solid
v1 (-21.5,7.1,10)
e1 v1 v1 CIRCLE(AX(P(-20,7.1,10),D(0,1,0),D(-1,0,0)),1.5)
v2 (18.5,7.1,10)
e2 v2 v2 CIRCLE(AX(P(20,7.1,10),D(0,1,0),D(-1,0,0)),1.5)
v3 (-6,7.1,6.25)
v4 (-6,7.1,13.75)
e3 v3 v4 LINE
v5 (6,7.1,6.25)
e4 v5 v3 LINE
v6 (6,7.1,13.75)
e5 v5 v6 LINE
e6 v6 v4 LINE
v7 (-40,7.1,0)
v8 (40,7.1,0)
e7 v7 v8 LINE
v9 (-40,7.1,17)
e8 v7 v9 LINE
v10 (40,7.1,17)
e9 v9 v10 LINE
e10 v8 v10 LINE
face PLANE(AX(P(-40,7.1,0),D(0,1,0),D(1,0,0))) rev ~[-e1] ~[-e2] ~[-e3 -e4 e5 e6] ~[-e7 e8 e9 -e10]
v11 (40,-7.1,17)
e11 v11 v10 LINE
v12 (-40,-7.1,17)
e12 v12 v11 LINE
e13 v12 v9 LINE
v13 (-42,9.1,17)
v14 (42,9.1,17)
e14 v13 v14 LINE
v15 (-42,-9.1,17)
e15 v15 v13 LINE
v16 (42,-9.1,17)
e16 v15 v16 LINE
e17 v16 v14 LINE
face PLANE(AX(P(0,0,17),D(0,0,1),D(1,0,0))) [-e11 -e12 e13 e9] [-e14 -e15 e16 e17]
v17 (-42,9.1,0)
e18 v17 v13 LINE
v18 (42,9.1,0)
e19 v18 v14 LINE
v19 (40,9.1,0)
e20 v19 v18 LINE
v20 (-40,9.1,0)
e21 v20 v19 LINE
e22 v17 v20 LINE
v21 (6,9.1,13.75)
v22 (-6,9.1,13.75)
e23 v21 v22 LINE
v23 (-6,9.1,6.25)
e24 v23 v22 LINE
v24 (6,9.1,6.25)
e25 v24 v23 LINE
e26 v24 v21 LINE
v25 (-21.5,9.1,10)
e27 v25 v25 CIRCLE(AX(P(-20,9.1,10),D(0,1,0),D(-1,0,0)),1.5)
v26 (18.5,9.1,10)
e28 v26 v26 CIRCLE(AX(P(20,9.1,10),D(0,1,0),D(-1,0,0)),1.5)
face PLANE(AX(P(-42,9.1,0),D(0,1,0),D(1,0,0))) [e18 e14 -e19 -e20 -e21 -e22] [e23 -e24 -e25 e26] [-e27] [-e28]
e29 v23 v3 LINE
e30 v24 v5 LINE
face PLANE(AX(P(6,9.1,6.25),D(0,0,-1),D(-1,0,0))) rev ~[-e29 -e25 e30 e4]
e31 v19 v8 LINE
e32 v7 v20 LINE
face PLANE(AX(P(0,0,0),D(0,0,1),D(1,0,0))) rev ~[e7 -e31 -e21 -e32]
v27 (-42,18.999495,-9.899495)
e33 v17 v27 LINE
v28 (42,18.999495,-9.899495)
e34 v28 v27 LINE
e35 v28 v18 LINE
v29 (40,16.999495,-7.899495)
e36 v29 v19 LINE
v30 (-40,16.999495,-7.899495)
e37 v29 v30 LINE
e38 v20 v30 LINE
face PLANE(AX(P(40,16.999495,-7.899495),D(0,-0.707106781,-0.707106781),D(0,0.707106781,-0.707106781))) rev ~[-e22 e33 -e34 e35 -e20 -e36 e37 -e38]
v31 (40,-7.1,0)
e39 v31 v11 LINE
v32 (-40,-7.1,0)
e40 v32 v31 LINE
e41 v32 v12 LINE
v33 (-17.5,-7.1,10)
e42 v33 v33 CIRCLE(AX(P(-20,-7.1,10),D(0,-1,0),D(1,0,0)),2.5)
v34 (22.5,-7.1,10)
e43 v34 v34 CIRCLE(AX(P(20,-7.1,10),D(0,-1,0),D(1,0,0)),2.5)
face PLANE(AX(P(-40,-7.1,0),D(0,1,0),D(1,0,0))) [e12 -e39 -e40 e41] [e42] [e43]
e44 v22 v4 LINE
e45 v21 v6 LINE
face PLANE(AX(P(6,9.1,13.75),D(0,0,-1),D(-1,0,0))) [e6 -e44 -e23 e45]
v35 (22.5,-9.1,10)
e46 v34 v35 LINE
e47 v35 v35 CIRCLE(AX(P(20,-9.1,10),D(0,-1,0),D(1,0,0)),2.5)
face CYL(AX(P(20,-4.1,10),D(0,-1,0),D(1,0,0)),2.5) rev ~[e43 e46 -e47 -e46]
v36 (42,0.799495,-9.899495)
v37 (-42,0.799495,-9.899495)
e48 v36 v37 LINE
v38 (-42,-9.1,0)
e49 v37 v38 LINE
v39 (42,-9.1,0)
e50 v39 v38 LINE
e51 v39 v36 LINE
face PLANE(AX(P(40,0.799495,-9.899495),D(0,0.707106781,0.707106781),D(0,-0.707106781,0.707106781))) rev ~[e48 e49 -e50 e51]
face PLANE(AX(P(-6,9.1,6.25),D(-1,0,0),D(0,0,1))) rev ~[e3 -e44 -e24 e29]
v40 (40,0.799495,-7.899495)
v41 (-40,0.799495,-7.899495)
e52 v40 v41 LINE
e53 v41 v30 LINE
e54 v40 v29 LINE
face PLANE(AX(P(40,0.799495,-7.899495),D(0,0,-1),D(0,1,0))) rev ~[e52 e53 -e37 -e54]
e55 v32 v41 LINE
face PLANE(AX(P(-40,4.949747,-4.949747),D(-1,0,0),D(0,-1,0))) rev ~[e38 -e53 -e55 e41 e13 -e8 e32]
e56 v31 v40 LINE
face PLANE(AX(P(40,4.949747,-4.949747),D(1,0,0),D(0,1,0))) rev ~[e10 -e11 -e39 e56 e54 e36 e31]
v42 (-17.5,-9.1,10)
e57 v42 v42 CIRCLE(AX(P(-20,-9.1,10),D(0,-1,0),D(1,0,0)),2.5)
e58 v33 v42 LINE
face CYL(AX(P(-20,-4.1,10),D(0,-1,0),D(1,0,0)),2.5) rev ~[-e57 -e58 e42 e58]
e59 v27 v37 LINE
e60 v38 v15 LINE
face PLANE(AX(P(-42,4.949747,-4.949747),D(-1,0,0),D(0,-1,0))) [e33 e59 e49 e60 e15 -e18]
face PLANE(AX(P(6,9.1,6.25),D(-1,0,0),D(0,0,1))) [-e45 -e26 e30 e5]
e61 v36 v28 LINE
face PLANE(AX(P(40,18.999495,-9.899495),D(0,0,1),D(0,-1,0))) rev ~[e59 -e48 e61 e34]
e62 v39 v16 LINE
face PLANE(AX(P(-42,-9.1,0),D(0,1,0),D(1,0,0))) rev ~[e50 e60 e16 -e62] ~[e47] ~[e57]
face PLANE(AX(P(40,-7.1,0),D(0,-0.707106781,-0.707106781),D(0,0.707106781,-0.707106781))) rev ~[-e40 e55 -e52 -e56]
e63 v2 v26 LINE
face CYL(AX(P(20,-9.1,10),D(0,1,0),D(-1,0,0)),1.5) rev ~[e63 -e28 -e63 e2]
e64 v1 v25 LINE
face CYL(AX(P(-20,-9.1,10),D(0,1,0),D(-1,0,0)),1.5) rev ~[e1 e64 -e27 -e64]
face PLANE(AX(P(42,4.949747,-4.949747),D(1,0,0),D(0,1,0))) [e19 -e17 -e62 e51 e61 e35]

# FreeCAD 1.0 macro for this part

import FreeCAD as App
import Part
import Sketcher
Q = App.Units.Quantity

doc = App.newDocument("Part")
body = doc.addObject("PartDesign::Body", "Body")

sketch1 = body.newObject("Sketcher::SketchObject", "Sketch")
sketch1.AttachmentSupport = (doc.getObject("XY_Plane"), [""])
sketch1.MapMode = "FlatFace"
sketch1.addGeometry(Part.LineSegment(App.Vector(-42, 9, 0), App.Vector(-42, -9, 0)), False)
sketch1.addGeometry(Part.LineSegment(App.Vector(-42, -9, 0), App.Vector(42, -9, 0)), False)
sketch1.addGeometry(Part.LineSegment(App.Vector(42, -9, 0), App.Vector(42, 9, 0)), False)
sketch1.addGeometry(Part.LineSegment(App.Vector(42, 9, 0), App.Vector(-42, 9, 0)), False)
sketch1.addGeometry(Part.LineSegment(App.Vector(40, -7, 0), App.Vector(-40, -7, 0)), False)
sketch1.addGeometry(Part.LineSegment(App.Vector(-40, -7, 0), App.Vector(-40, 7, 0)), False)
sketch1.addGeometry(Part.LineSegment(App.Vector(-40, 7, 0), App.Vector(40, 7, 0)), False)
sketch1.addGeometry(Part.LineSegment(App.Vector(40, 7, 0), App.Vector(40, -7, 0)), False)
sketch1.addConstraint(Sketcher.Constraint("Coincident", 0, 2, 1, 1))
sketch1.addConstraint(Sketcher.Constraint("Coincident", 1, 2, 2, 1))
sketch1.addConstraint(Sketcher.Constraint("Coincident", 2, 2, 3, 1))
sketch1.addConstraint(Sketcher.Constraint("Coincident", 3, 2, 0, 1))
sketch1.addConstraint(Sketcher.Constraint("Coincident", 4, 2, 5, 1))
sketch1.addConstraint(Sketcher.Constraint("Coincident", 5, 2, 6, 1))
sketch1.addConstraint(Sketcher.Constraint("Coincident", 6, 2, 7, 1))
sketch1.addConstraint(Sketcher.Constraint("Coincident", 7, 2, 4, 1))
sketch1.addConstraint(Sketcher.Constraint("Vertical", 0))
sketch1.addConstraint(Sketcher.Constraint("Horizontal", 1))
sketch1.addConstraint(Sketcher.Constraint("Vertical", 2))
sketch1.addConstraint(Sketcher.Constraint("Horizontal", 3))
sketch1.addConstraint(Sketcher.Constraint("Horizontal", 4))
sketch1.addConstraint(Sketcher.Constraint("Vertical", 5))
sketch1.addConstraint(Sketcher.Constraint("Horizontal", 6))
sketch1.addConstraint(Sketcher.Constraint("Vertical", 7))
sketch1.addConstraint(Sketcher.Constraint("Symmetric", 0, 2, 2, 2, -1, 1))
sketch1.addConstraint(Sketcher.Constraint("Symmetric", 4, 2, 6, 2, -1, 1))
sketch1.addConstraint(Sketcher.Constraint("DistanceX", 1, 1, 1, 2, 84.0))
sketch1.addConstraint(Sketcher.Constraint("DistanceX", 4, 2, 4, 1, 80.0))
sketch1.addConstraint(Sketcher.Constraint("DistanceY", 0, 2, 0, 1, 18.2))
sketch1.addConstraint(Sketcher.Constraint("DistanceY", 5, 1, 5, 2, 14.2))
pad1 = body.newObject("PartDesign::Pad", "Pad")
pad1.Profile = sketch1
pad1.Length = 17

sketch2 = body.newObject("Sketcher::SketchObject", "Sketch001")
sketch2.AttachmentSupport = (doc.getObject("XZ_Plane"), [""])
sketch2.MapMode = "FlatFace"
sketch2.AttachmentOffset = App.Placement(App.Vector(0, 0, 9.1), App.Rotation())
sketch2.addGeometry(Part.Circle(App.Vector(-20, 10, 0), App.Vector(0, 0, 1), 1.5), False)
sketch2.addGeometry(Part.Circle(App.Vector(20, 10, 0), App.Vector(0, 0, 1), 1.5), False)
sketch2.addConstraint(Sketcher.Constraint("Equal", 0, 1))
sketch2.addConstraint(Sketcher.Constraint("Symmetric", 0, 3, 1, 3, -2))
sketch2.addConstraint(Sketcher.Constraint("Diameter", 0, 3.0))
sketch2.addConstraint(Sketcher.Constraint("DistanceX", 0, 3, -1, 1, 20.0))
sketch2.addConstraint(Sketcher.Constraint("DistanceY", -1, 1, 0, 3, 10.0))
doc.recompute()
hole = body.newObject("PartDesign::Hole", "Hole")
hole.Profile = sketch2
hole.ThreadType = "None"
hole.Diameter = 3
hole.DepthType = "ThroughAll"
hole.HoleCutType = "Counterbore"
hole.HoleCutDiameter = 5
hole.HoleCutDepth = 5

sketch3 = body.newObject("Sketcher::SketchObject", "Sketch002")
sketch3.AttachmentSupport = (doc.getObject("XZ_Plane"), [""])
sketch3.MapMode = "FlatFace"
sketch3.AttachmentOffset = App.Placement(App.Vector(0, 0, -9.1), App.Rotation())
sketch3.addGeometry(Part.LineSegment(App.Vector(6, 14, 0), App.Vector(6, 6, 0)), False)
sketch3.addGeometry(Part.LineSegment(App.Vector(6, 6, 0), App.Vector(-6, 6, 0)), False)
sketch3.addGeometry(Part.LineSegment(App.Vector(-6, 6, 0), App.Vector(-6, 14, 0)), False)
sketch3.addGeometry(Part.LineSegment(App.Vector(-6, 14, 0), App.Vector(6, 14, 0)), False)
sketch3.addConstraint(Sketcher.Constraint("Coincident", 0, 2, 1, 1))
sketch3.addConstraint(Sketcher.Constraint("Coincident", 1, 2, 2, 1))
sketch3.addConstraint(Sketcher.Constraint("Coincident", 2, 2, 3, 1))
sketch3.addConstraint(Sketcher.Constraint("Coincident", 3, 2, 0, 1))
sketch3.addConstraint(Sketcher.Constraint("Vertical", 0))
sketch3.addConstraint(Sketcher.Constraint("Horizontal", 1))
sketch3.addConstraint(Sketcher.Constraint("Vertical", 2))
sketch3.addConstraint(Sketcher.Constraint("Horizontal", 3))
sketch3.addConstraint(Sketcher.Constraint("DistanceX", 1, 2, 1, 1, 12.0))
sketch3.addConstraint(Sketcher.Constraint("DistanceY", 0, 2, 0, 1, 7.5))
sketch3.addConstraint(Sketcher.Constraint("DistanceX", -1, 1, 0, 2, 6.0))
sketch3.addConstraint(Sketcher.Constraint("DistanceY", -1, 1, 0, 2, 6.25))
pocket1 = body.newObject("PartDesign::Pocket", "Pocket")
pocket1.Profile = sketch3
pocket1.Length = 2
pocket1.Reversed = True

sketch4 = body.newObject("Sketcher::SketchObject", "Sketch003")
sketch4.AttachmentSupport = (doc.getObject("YZ_Plane"), [""])
sketch4.MapMode = "FlatFace"
sketch4.AttachmentOffset = App.Placement(App.Vector(0, 0, -42), App.Rotation())
sketch4.addGeometry(Part.LineSegment(App.Vector(-9, 0, 0), App.Vector(9, 0, 0)), False)
sketch4.addGeometry(Part.LineSegment(App.Vector(9, 0, 0), App.Vector(19, -10, 0)), False)
sketch4.addGeometry(Part.LineSegment(App.Vector(19, -10, 0), App.Vector(1, -10, 0)), False)
sketch4.addGeometry(Part.LineSegment(App.Vector(1, -10, 0), App.Vector(-9, 0, 0)), False)
sketch4.addConstraint(Sketcher.Constraint("Coincident", 0, 2, 1, 1))
sketch4.addConstraint(Sketcher.Constraint("Coincident", 1, 2, 2, 1))
sketch4.addConstraint(Sketcher.Constraint("Coincident", 2, 2, 3, 1))
sketch4.addConstraint(Sketcher.Constraint("Coincident", 3, 2, 0, 1))
sketch4.addConstraint(Sketcher.Constraint("Horizontal", 0))
sketch4.addConstraint(Sketcher.Constraint("Horizontal", 2))
sketch4.addConstraint(Sketcher.Constraint("Symmetric", 0, 2, 3, 2, -1, 1))
sketch4.addConstraint(Sketcher.Constraint("Parallel", 1, 3))
sketch4.addConstraint(Sketcher.Constraint("Angle", 1, Q("-45 deg")))
sketch4.addConstraint(Sketcher.Constraint("Distance", 1, 14.0))
sketch4.addConstraint(Sketcher.Constraint("DistanceX", 0, 1, 0, 2, 18.2))
pad2 = body.newObject("PartDesign::Pad", "Pad001")
pad2.Profile = sketch4
pad2.Length = 2

sketch5 = body.newObject("Sketcher::SketchObject", "Sketch004")
sketch5.AttachmentSupport = (doc.getObject("YZ_Plane"), [""])
sketch5.MapMode = "FlatFace"
sketch5.AttachmentOffset = App.Placement(App.Vector(0, 0, 42), App.Rotation())
sketch5.addGeometry(Part.LineSegment(App.Vector(9, 0, 0), App.Vector(-9, 0, 0)), False)
sketch5.addGeometry(Part.LineSegment(App.Vector(-9, 0, 0), App.Vector(1, -10, 0)), False)
sketch5.addGeometry(Part.LineSegment(App.Vector(1, -10, 0), App.Vector(19, -10, 0)), False)
sketch5.addGeometry(Part.LineSegment(App.Vector(19, -10, 0), App.Vector(9, 0, 0)), False)
sketch5.addConstraint(Sketcher.Constraint("Coincident", 0, 2, 1, 1))
sketch5.addConstraint(Sketcher.Constraint("Coincident", 1, 2, 2, 1))
sketch5.addConstraint(Sketcher.Constraint("Coincident", 2, 2, 3, 1))
sketch5.addConstraint(Sketcher.Constraint("Coincident", 3, 2, 0, 1))
sketch5.addConstraint(Sketcher.Constraint("Horizontal", 0))
sketch5.addConstraint(Sketcher.Constraint("Horizontal", 2))
sketch5.addConstraint(Sketcher.Constraint("Symmetric", 0, 2, 3, 2, -1, 1))
sketch5.addConstraint(Sketcher.Constraint("Parallel", 1, 3))
sketch5.addConstraint(Sketcher.Constraint("Angle", 1, Q("-45 deg")))
sketch5.addConstraint(Sketcher.Constraint("Distance", 1, 14.0))
sketch5.addConstraint(Sketcher.Constraint("DistanceX", 0, 2, 0, 1, 18.2))
pad3 = body.newObject("PartDesign::Pad", "Pad002")
pad3.Profile = sketch5
pad3.Length = 2
pad3.Reversed = True

sketch6 = body.newObject("Sketcher::SketchObject", "Sketch005")
sketch6.AttachmentSupport = (doc.getObject("YZ_Plane"), [""])
sketch6.MapMode = "FlatFace"
sketch6.AttachmentOffset = App.Placement(App.Vector(0, 0, 40), App.Rotation())
sketch6.addGeometry(Part.LineSegment(App.Vector(-9.1, 0, 0), App.Vector(-7.1, 0, 0)), False)
sketch6.addGeometry(Part.LineSegment(App.Vector(-7.1, 0, 0), App.Vector(2.8, -9.9, 0)), False)
sketch6.addGeometry(Part.LineSegment(App.Vector(2.8, -9.9, 0), App.Vector(0.8, -9.9, 0)), False)
sketch6.addGeometry(Part.LineSegment(App.Vector(0.8, -9.9, 0), App.Vector(-9.1, 0, 0)), False)
sketch6.addConstraint(Sketcher.Constraint("Coincident", 0, 2, 1, 1))
sketch6.addConstraint(Sketcher.Constraint("Coincident", 1, 2, 2, 1))
sketch6.addConstraint(Sketcher.Constraint("Coincident", 2, 2, 3, 1))
sketch6.addConstraint(Sketcher.Constraint("Coincident", 3, 2, 0, 1))
sketch6.addConstraint(Sketcher.Constraint("Horizontal", 0))
sketch6.addConstraint(Sketcher.Constraint("Horizontal", 2))
sketch6.addConstraint(Sketcher.Constraint("PointOnObject", 0, 2, -1))
sketch6.addConstraint(Sketcher.Constraint("Parallel", 1, 3))
sketch6.addConstraint(Sketcher.Constraint("DistanceX", 0, 1, 0, 2, 2.0))
sketch6.addConstraint(Sketcher.Constraint("Angle", 1, Q("-45 deg")))
sketch6.addConstraint(Sketcher.Constraint("Distance", 1, 14.0))
sketch6.addConstraint(Sketcher.Constraint("DistanceX", 0, 2, -1, 1, 7.1))
pad4 = body.newObject("PartDesign::Pad", "Pad003")
pad4.Profile = sketch6
pad4.Length = 80
pad4.Reversed = True

sketch7 = body.newObject("Sketcher::SketchObject", "Sketch006")
sketch7.AttachmentSupport = (doc.getObject("YZ_Plane"), [""])
sketch7.MapMode = "FlatFace"
sketch7.AttachmentOffset = App.Placement(App.Vector(0, 0, 40), App.Rotation())
sketch7.addGeometry(Part.LineSegment(App.Vector(0.8, -7.9, 0), App.Vector(17, -7.9, 0)), False)
sketch7.addGeometry(Part.LineSegment(App.Vector(17, -7.9, 0), App.Vector(19, -9.9, 0)), False)
sketch7.addGeometry(Part.LineSegment(App.Vector(19, -9.9, 0), App.Vector(2.8, -9.9, 0)), False)
sketch7.addGeometry(Part.LineSegment(App.Vector(2.8, -9.9, 0), App.Vector(0.8, -7.9, 0)), False)
sketch7.addConstraint(Sketcher.Constraint("Coincident", 0, 2, 1, 1))
sketch7.addConstraint(Sketcher.Constraint("Coincident", 1, 2, 2, 1))
sketch7.addConstraint(Sketcher.Constraint("Coincident", 2, 2, 3, 1))
sketch7.addConstraint(Sketcher.Constraint("Coincident", 3, 2, 0, 1))
sketch7.addConstraint(Sketcher.Constraint("Horizontal", 0))
sketch7.addConstraint(Sketcher.Constraint("Horizontal", 2))
sketch7.addConstraint(Sketcher.Constraint("Parallel", 1, 3))
sketch7.addConstraint(Sketcher.Constraint("Angle", 1, Q("-45 deg")))
sketch7.addConstraint(Sketcher.Constraint("DistanceX", 0, 1, 0, 2, 16.2))
sketch7.addConstraint(Sketcher.Constraint("DistanceX", 0, 2, 1, 2, 2.0))
sketch7.addConstraint(Sketcher.Constraint("DistanceX", -1, 1, 0, 2, 16.999495))
sketch7.addConstraint(Sketcher.Constraint("DistanceY", 0, 2, -1, 1, 7.899495))
pad5 = body.newObject("PartDesign::Pad", "Pad004")
pad5.Profile = sketch7
pad5.Length = 80
pad5.Reversed = True

doc.recompute()
